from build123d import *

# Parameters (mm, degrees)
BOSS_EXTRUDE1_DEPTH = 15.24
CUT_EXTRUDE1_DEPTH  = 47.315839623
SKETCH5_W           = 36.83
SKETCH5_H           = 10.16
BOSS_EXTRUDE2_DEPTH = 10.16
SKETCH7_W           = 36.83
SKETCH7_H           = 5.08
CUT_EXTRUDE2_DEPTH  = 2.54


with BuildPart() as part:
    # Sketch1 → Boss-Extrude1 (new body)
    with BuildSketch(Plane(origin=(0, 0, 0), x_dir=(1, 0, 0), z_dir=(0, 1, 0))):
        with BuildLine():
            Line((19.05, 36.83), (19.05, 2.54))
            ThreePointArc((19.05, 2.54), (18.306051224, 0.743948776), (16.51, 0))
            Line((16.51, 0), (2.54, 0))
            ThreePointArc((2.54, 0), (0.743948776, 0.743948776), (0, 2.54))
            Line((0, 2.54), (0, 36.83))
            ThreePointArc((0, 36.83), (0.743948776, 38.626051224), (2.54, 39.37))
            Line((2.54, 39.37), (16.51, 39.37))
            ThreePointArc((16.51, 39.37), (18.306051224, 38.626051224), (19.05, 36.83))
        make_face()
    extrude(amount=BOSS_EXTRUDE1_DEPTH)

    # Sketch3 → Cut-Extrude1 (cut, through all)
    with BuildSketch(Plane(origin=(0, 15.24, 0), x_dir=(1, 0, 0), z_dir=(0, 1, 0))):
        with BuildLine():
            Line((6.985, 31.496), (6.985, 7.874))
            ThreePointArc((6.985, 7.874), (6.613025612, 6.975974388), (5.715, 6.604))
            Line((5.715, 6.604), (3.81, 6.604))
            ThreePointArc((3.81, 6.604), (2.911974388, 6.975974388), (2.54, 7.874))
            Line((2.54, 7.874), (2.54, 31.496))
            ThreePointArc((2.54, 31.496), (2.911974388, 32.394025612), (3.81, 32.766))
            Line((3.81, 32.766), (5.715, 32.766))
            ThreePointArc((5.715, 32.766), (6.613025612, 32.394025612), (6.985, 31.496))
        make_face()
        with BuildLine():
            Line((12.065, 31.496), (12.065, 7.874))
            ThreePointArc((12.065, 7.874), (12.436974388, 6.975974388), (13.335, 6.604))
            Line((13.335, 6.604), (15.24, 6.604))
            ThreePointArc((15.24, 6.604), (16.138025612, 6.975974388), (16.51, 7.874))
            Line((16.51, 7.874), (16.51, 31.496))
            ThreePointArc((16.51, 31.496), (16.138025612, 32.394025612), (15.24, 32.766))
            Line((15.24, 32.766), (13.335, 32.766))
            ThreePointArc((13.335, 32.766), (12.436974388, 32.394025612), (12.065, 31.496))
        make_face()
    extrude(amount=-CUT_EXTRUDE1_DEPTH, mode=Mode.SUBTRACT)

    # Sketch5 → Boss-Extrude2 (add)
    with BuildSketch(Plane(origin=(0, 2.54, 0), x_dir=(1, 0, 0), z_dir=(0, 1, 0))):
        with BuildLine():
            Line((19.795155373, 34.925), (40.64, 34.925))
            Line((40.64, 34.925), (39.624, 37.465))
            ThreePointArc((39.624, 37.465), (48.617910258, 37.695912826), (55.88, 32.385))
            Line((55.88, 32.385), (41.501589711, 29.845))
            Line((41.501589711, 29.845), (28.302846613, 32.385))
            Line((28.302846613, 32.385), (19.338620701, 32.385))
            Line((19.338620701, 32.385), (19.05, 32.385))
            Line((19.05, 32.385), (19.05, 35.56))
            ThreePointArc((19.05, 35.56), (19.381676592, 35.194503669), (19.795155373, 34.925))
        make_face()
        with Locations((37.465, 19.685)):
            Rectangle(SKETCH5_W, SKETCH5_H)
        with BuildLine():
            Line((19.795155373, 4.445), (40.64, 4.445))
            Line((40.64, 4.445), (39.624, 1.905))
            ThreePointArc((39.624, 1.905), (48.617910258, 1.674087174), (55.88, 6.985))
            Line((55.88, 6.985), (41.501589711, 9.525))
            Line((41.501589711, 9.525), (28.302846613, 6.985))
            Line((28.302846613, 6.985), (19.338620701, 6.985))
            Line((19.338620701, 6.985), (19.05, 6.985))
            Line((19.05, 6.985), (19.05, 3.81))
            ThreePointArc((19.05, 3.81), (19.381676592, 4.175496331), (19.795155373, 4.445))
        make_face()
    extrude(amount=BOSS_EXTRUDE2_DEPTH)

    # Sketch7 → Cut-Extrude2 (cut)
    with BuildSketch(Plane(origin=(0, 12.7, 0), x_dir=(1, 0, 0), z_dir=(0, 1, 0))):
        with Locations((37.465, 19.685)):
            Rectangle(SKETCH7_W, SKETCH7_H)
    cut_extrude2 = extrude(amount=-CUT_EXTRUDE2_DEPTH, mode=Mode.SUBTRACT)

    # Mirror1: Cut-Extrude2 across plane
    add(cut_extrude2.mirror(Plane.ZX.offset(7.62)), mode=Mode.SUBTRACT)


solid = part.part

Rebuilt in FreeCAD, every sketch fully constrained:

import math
import FreeCAD as App
import Part
import Sketcher

V = App.Vector
Q = App.Units.Quantity

doc = App.newDocument("Part")
body = doc.addObject("PartDesign::Body", "Body")

# Sketch on XZ plane
sketch1 = doc.addObject("Sketcher::SketchObject", "Sketch")
body.addObject(sketch1)
sketch1.AttachmentSupport = (doc.XZ_Plane, [""])
sketch1.MapMode = "FlatFace"
sketch1.addGeometry(Part.LineSegment(V(19.05, -2.54, 0), V(19.05, -36.83, 0)), False)
sketch1.addGeometry(Part.ArcOfCircle(Part.Circle(V(16.51, -36.83, 0), V(0, 0, 1), 2.54), math.radians(-90), math.radians(0)), False)
sketch1.addGeometry(Part.LineSegment(V(16.51, -39.37, 0), V(2.54, -39.37, 0)), False)
sketch1.addGeometry(Part.ArcOfCircle(Part.Circle(V(2.54, -36.83, 0), V(0, 0, 1), 2.54), math.radians(-180), math.radians(-90)), False)
sketch1.addGeometry(Part.LineSegment(V(0, -36.83, 0), V(0, -2.54, 0)), False)
sketch1.addGeometry(Part.ArcOfCircle(Part.Circle(V(2.54, -2.54, 0), V(0, 0, 1), 2.54), math.radians(90), math.radians(180)), False)
sketch1.addGeometry(Part.LineSegment(V(2.54, 0, 0), V(16.51, 0, 0)), False)
sketch1.addGeometry(Part.ArcOfCircle(Part.Circle(V(16.51, -2.54, 0), V(0, 0, 1), 2.54), math.radians(0), math.radians(90)), False)
sketch1.addConstraint(Sketcher.Constraint("Tangent", 0, 2, 1, 2))
sketch1.addConstraint(Sketcher.Constraint("Tangent", 1, 1, 2, 1))
sketch1.addConstraint(Sketcher.Constraint("Tangent", 2, 2, 3, 2))
sketch1.addConstraint(Sketcher.Constraint("Tangent", 3, 1, 4, 1))
sketch1.addConstraint(Sketcher.Constraint("Tangent", 4, 2, 5, 2))
sketch1.addConstraint(Sketcher.Constraint("Tangent", 5, 1, 6, 1))
sketch1.addConstraint(Sketcher.Constraint("Tangent", 6, 2, 7, 2))
sketch1.addConstraint(Sketcher.Constraint("Tangent", 7, 1, 0, 1))
sketch1.addConstraint(Sketcher.Constraint("Vertical", 0))
sketch1.addConstraint(Sketcher.Constraint("Horizontal", 2))
sketch1.addConstraint(Sketcher.Constraint("Vertical", 4))
sketch1.addConstraint(Sketcher.Constraint("Horizontal", 6))
sketch1.addConstraint(Sketcher.Constraint("Equal", 1, 3))
sketch1.addConstraint(Sketcher.Constraint("Equal", 3, 5))
sketch1.addConstraint(Sketcher.Constraint("Equal", 5, 7))
sketch1.addConstraint(Sketcher.Constraint("PointOnObject", 3, 1, -2))
sketch1.addConstraint(Sketcher.Constraint("PointOnObject", 5, 1, -1))
sketch1.addConstraint(Sketcher.Constraint("Radius", 1, Q("0.1 in")))
sketch1.addConstraint(Sketcher.Constraint("DistanceX", 2, 2, 2, 1, Q("0.55 in")))
sketch1.addConstraint(Sketcher.Constraint("DistanceY", 0, 2, 0, 1, Q("1.35 in")))
pad1 = doc.addObject("PartDesign::Pad", "Pad")
body.addObject(pad1)
pad1.Profile = sketch1
pad1.Length = Q("0.6 in")
pad1.Reversed = True

# Sketch on XZ plane
sketch2 = doc.addObject("Sketcher::SketchObject", "Sketch001")
body.addObject(sketch2)
sketch2.AttachmentSupport = (doc.XZ_Plane, [""])
sketch2.MapMode = "FlatFace"
sketch2.AttachmentOffset = App.Placement(V(0, 0, -0.6 * 25.4), App.Rotation())
sketch2.addGeometry(Part.LineSegment(V(6.985, -7.874, 0), V(6.985, -31.496, 0)), False)
sketch2.addGeometry(Part.ArcOfCircle(Part.Circle(V(5.715, -31.496, 0), V(0, 0, 1), 1.27), math.radians(-90), math.radians(0)), False)
sketch2.addGeometry(Part.LineSegment(V(5.715, -32.766, 0), V(3.81, -32.766, 0)), False)
sketch2.addGeometry(Part.ArcOfCircle(Part.Circle(V(3.81, -31.496, 0), V(0, 0, 1), 1.27), math.radians(180), math.radians(270)), False)
sketch2.addGeometry(Part.LineSegment(V(2.54, -31.496, 0), V(2.54, -7.874, 0)), False)
sketch2.addGeometry(Part.ArcOfCircle(Part.Circle(V(3.81, -7.874, 0), V(0, 0, 1), 1.27), math.radians(90), math.radians(180)), False)
sketch2.addGeometry(Part.LineSegment(V(3.81, -6.604, 0), V(5.715, -6.604, 0)), False)
sketch2.addGeometry(Part.ArcOfCircle(Part.Circle(V(5.715, -7.874, 0), V(0, 0, 1), 1.27), math.radians(0), math.radians(90)), False)
sketch2.addGeometry(Part.LineSegment(V(12.065, -31.496, 0), V(12.065, -7.874, 0)), False)
sketch2.addGeometry(Part.ArcOfCircle(Part.Circle(V(13.335, -7.874, 0), V(0, 0, 1), 1.27), math.radians(90), math.radians(180)), False)
sketch2.addGeometry(Part.LineSegment(V(13.335, -6.604, 0), V(15.24, -6.604, 0)), False)
sketch2.addGeometry(Part.ArcOfCircle(Part.Circle(V(15.24, -7.874, 0), V(0, 0, 1), 1.27), math.radians(0), math.radians(90)), False)
sketch2.addGeometry(Part.LineSegment(V(16.51, -7.874, 0), V(16.51, -31.496, 0)), False)
sketch2.addGeometry(Part.ArcOfCircle(Part.Circle(V(15.24, -31.496, 0), V(0, 0, 1), 1.27), math.radians(-90), math.radians(0)), False)
sketch2.addGeometry(Part.LineSegment(V(15.24, -32.766, 0), V(13.335, -32.766, 0)), False)
sketch2.addGeometry(Part.ArcOfCircle(Part.Circle(V(13.335, -31.496, 0), V(0, 0, 1), 1.27), math.radians(180), math.radians(270)), False)
sketch2.addConstraint(Sketcher.Constraint("Tangent", 0, 2, 1, 2))
sketch2.addConstraint(Sketcher.Constraint("Tangent", 1, 1, 2, 1))
sketch2.addConstraint(Sketcher.Constraint("Tangent", 2, 2, 3, 2))
sketch2.addConstraint(Sketcher.Constraint("Tangent", 3, 1, 4, 1))
sketch2.addConstraint(Sketcher.Constraint("Tangent", 4, 2, 5, 2))
sketch2.addConstraint(Sketcher.Constraint("Tangent", 5, 1, 6, 1))
sketch2.addConstraint(Sketcher.Constraint("Tangent", 6, 2, 7, 2))
sketch2.addConstraint(Sketcher.Constraint("Tangent", 7, 1, 0, 1))
sketch2.addConstraint(Sketcher.Constraint("Tangent", 8, 2, 9, 2))
sketch2.addConstraint(Sketcher.Constraint("Tangent", 9, 1, 10, 1))
sketch2.addConstraint(Sketcher.Constraint("Tangent", 10, 2, 11, 2))
sketch2.addConstraint(Sketcher.Constraint("Tangent", 11, 1, 12, 1))
sketch2.addConstraint(Sketcher.Constraint("Tangent", 12, 2, 13, 2))
sketch2.addConstraint(Sketcher.Constraint("Tangent", 13, 1, 14, 1))
sketch2.addConstraint(Sketcher.Constraint("Tangent", 14, 2, 15, 2))
sketch2.addConstraint(Sketcher.Constraint("Tangent", 15, 1, 8, 1))
sketch2.addConstraint(Sketcher.Constraint("Vertical", 0))
sketch2.addConstraint(Sketcher.Constraint("Horizontal", 2))
sketch2.addConstraint(Sketcher.Constraint("Vertical", 4))
sketch2.addConstraint(Sketcher.Constraint("Horizontal", 6))
sketch2.addConstraint(Sketcher.Constraint("Vertical", 8))
sketch2.addConstraint(Sketcher.Constraint("Horizontal", 10))
sketch2.addConstraint(Sketcher.Constraint("Vertical", 12))
sketch2.addConstraint(Sketcher.Constraint("Horizontal", 14))
sketch2.addConstraint(Sketcher.Constraint("Equal", 1, 3))
sketch2.addConstraint(Sketcher.Constraint("Equal", 3, 5))
sketch2.addConstraint(Sketcher.Constraint("Equal", 5, 7))
sketch2.addConstraint(Sketcher.Constraint("Equal", 7, 9))
sketch2.addConstraint(Sketcher.Constraint("Equal", 9, 11))
sketch2.addConstraint(Sketcher.Constraint("Equal", 11, 13))
sketch2.addConstraint(Sketcher.Constraint("Equal", 13, 15))
sketch2.addConstraint(Sketcher.Constraint("Horizontal", 7, 3, 9, 3))
sketch2.addConstraint(Sketcher.Constraint("Horizontal", 3, 3, 13, 3))
sketch2.addConstraint(Sketcher.Constraint("Equal", 6, 10))
sketch2.addConstraint(Sketcher.Constraint("Radius", 1, Q("0.05 in")))
sketch2.addConstraint(Sketcher.Constraint("DistanceY", 0, 2, 0, 1, Q("0.93 in")))
sketch2.addConstraint(Sketcher.Constraint("DistanceX", -1, 1, 11, 3, Q("0.6 in")))
sketch2.addConstraint(Sketcher.Constraint("DistanceX", -1, 1, 3, 1, Q("0.1 in")))
sketch2.addConstraint(Sketcher.Constraint("DistanceX", 7, 3, 9, 3, Q("0.3 in")))
sketch2.addConstraint(Sketcher.Constraint("DistanceY", 1, 3, -1, 1, Q("1.24 in")))
pocket1 = doc.addObject("PartDesign::Pocket", "Pocket")
body.addObject(pocket1)
pocket1.Profile = sketch2
pocket1.Type = "ThroughAll"
pocket1.Reversed = True

# Sketch on XZ plane
sketch3 = doc.addObject("Sketcher::SketchObject", "Sketch002")
body.addObject(sketch3)
sketch3.AttachmentSupport = (doc.XZ_Plane, [""])
sketch3.MapMode = "FlatFace"
sketch3.AttachmentOffset = App.Placement(V(0, 0, -0.1 * 25.4), App.Rotation())
sketch3.addGeometry(Part.LineSegment(V(40.64, -34.925, 0), V(19.795155, -34.925, 0)), False)
sketch3.addGeometry(Part.ArcOfCircle(Part.Circle(V(20.634444, -36.664593, 0), V(0, 0, 1), 1.931473), math.radians(115.755585), math.radians(145.11778)), False)
sketch3.addGeometry(Part.LineSegment(V(19.05, -35.56, 0), V(19.05, -32.385, 0)), False)
sketch3.addGeometry(Part.LineSegment(V(19.05, -32.385, 0), V(28.302847, -32.385, 0)), False)
sketch3.addGeometry(Part.LineSegment(V(28.302847, -32.385, 0), V(41.50159, -29.845, 0)), False)
sketch3.addGeometry(Part.LineSegment(V(41.50159, -29.845, 0), V(55.88, -32.385, 0)), False)
sketch3.addGeometry(Part.ArcOfCircle(Part.Circle(V(44.459627, -24.389406, 0), V(0, 0, 1), 13.941106), math.radians(-110.295443), math.radians(-34.996508)), False)
sketch3.addGeometry(Part.LineSegment(V(39.624, -37.465, 0), V(40.64, -34.925, 0)), False)
sketch3.addGeometry(Part.LineSegment(V(19.05, -24.765, 0), V(19.05, -14.605, 0)), False)
sketch3.addGeometry(Part.LineSegment(V(19.05, -14.605, 0), V(55.88, -14.605, 0)), False)
sketch3.addGeometry(Part.LineSegment(V(55.88, -14.605, 0), V(55.88, -24.765, 0)), False)
sketch3.addGeometry(Part.LineSegment(V(55.88, -24.765, 0), V(19.05, -24.765, 0)), False)
sketch3.addGeometry(Part.LineSegment(V(19.795155, -4.445, 0), V(40.64, -4.445, 0)), False)
sketch3.addGeometry(Part.LineSegment(V(40.64, -4.445, 0), V(39.624, -1.905, 0)), False)
sketch3.addGeometry(Part.ArcOfCircle(Part.Circle(V(44.459627, -14.980594, 0), V(0, 0, 1), 13.941106), math.radians(34.996508), math.radians(110.295443)), False)
sketch3.addGeometry(Part.LineSegment(V(55.88, -6.985, 0), V(41.50159, -9.525, 0)), False)
sketch3.addGeometry(Part.LineSegment(V(41.50159, -9.525, 0), V(28.302847, -6.985, 0)), False)
sketch3.addGeometry(Part.LineSegment(V(28.302847, -6.985, 0), V(19.05, -6.985, 0)), False)
sketch3.addGeometry(Part.LineSegment(V(19.05, -6.985, 0), V(19.05, -3.81, 0)), False)
sketch3.addGeometry(Part.ArcOfCircle(Part.Circle(V(20.634444, -2.705407, 0), V(0, 0, 1), 1.931473), math.radians(-145.11778), math.radians(-115.755585)), False)
sketch3.addConstraint(Sketcher.Constraint("Coincident", 0, 2, 1, 1))
sketch3.addConstraint(Sketcher.Constraint("Coincident", 1, 2, 2, 1))
sketch3.addConstraint(Sketcher.Constraint("Coincident", 2, 2, 3, 1))
sketch3.addConstraint(Sketcher.Constraint("Coincident", 3, 2, 4, 1))
sketch3.addConstraint(Sketcher.Constraint("Coincident", 4, 2, 5, 1))
sketch3.addConstraint(Sketcher.Constraint("Coincident", 5, 2, 6, 2))
sketch3.addConstraint(Sketcher.Constraint("Coincident", 6, 1, 7, 1))
sketch3.addConstraint(Sketcher.Constraint("Coincident", 7, 2, 0, 1))
sketch3.addConstraint(Sketcher.Constraint("Coincident", 8, 2, 9, 1))
sketch3.addConstraint(Sketcher.Constraint("Coincident", 9, 2, 10, 1))
sketch3.addConstraint(Sketcher.Constraint("Coincident", 10, 2, 11, 1))
sketch3.addConstraint(Sketcher.Constraint("Coincident", 11, 2, 8, 1))
sketch3.addConstraint(Sketcher.Constraint("Coincident", 12, 2, 13, 1))
sketch3.addConstraint(Sketcher.Constraint("Coincident", 13, 2, 14, 2))
sketch3.addConstraint(Sketcher.Constraint("Coincident", 14, 1, 15, 1))
sketch3.addConstraint(Sketcher.Constraint("Coincident", 15, 2, 16, 1))
sketch3.addConstraint(Sketcher.Constraint("Coincident", 16, 2, 17, 1))
sketch3.addConstraint(Sketcher.Constraint("Coincident", 17, 2, 18, 1))
sketch3.addConstraint(Sketcher.Constraint("Coincident", 18, 2, 19, 1))
sketch3.addConstraint(Sketcher.Constraint("Coincident", 19, 2, 12, 1))
sketch3.addConstraint(Sketcher.Constraint("Horizontal", 0))
sketch3.addConstraint(Sketcher.Constraint("Vertical", 2))
sketch3.addConstraint(Sketcher.Constraint("Horizontal", 3))
sketch3.addConstraint(Sketcher.Constraint("Vertical", 8))
sketch3.addConstraint(Sketcher.Constraint("Horizontal", 9))
sketch3.addConstraint(Sketcher.Constraint("Vertical", 10))
sketch3.addConstraint(Sketcher.Constraint("Horizontal", 11))
sketch3.addConstraint(Sketcher.Constraint("Horizontal", 12))
sketch3.addConstraint(Sketcher.Constraint("Horizontal", 17))
sketch3.addConstraint(Sketcher.Constraint("Vertical", 18))
sketch3.addConstraint(Sketcher.Constraint("Equal", 6, 14))
sketch3.addConstraint(Sketcher.Constraint("Equal", 1, 19))
sketch3.addConstraint(Sketcher.Constraint("Horizontal", 3, 2, 5, 2))
sketch3.addConstraint(Sketcher.Constraint("Horizontal", 14, 1, 16, 2))
sketch3.addConstraint(Sketcher.Constraint("Vertical", 6, 3, 14, 3))
sketch3.addConstraint(Sketcher.Constraint("Vertical", 1, 3, 19, 3))
sketch3.addConstraint(Sketcher.Constraint("Vertical", 2, 2, 8, 2))
sketch3.addConstraint(Sketcher.Constraint("Vertical", 5, 2, 9, 2))
sketch3.addConstraint(Sketcher.Constraint("Vertical", 7, 2, 12, 2))
sketch3.addConstraint(Sketcher.Constraint("Vertical", 6, 1, 13, 2))
sketch3.addConstraint(Sketcher.Constraint("Vertical", 10, 2, 14, 1))
sketch3.addConstraint(Sketcher.Constraint("Vertical", 4, 2, 15, 2))
sketch3.addConstraint(Sketcher.Constraint("Vertical", 3, 2, 16, 2))
sketch3.addConstraint(Sketcher.Constraint("Vertical", 11, 2, 17, 2))
sketch3.addConstraint(Sketcher.Constraint("Vertical", 0, 2, 19, 2))
sketch3.addConstraint(Sketcher.Constraint("Equal", 2, 18))
sketch3.addConstraint(Sketcher.Constraint("Equal", 5, 15))
sketch3.addConstraint(Sketcher.Constraint("DistanceY", 8, 1, 8, 2, Q("0.4 in")))
sketch3.addConstraint(Sketcher.Constraint("DistanceX", 9, 1, 9, 2, Q("1.45 in")))
sketch3.addConstraint(Sketcher.Constraint("DistanceY", 1, 2, -1, 1, Q("1.4 in")))
sketch3.addConstraint(Sketcher.Constraint("DistanceX", -1, 1, 5, 2, Q("2.2 in")))
sketch3.addConstraint(Sketcher.Constraint("DistanceX", -1, 1, 7, 2, Q("1.6 in")))
sketch3.addConstraint(Sketcher.Constraint("DistanceY", 0, 2, 2, 2, Q("0.1 in")))
sketch3.addConstraint(Sketcher.Constraint("DistanceY", 3, 2, 4, 2, Q("0.1 in")))
sketch3.addConstraint(Sketcher.Constraint("DistanceY", 6, 1, 4, 2, Q("0.3 in")))
sketch3.addConstraint(Sketcher.Constraint("DistanceY", 2, 2, 8, 2, Q("0.7 in")))
sketch3.addConstraint(Sketcher.Constraint("DistanceY", 9, 2, 12, 2, Q("0.4 in")))
sketch3.addConstraint(Sketcher.Constraint("DistanceY", 2, 1, 2, 2, Q("0.125 in")))
sketch3.addConstraint(Sketcher.Constraint("DistanceX", -1, 1, 6, 1, Q("1.56 in")))
sketch3.addConstraint(Sketcher.Constraint("Radius", 1, Q("1.931473 mm")))
sketch3.addConstraint(Sketcher.Constraint("Radius", 6, Q("13.941106 mm")))
sketch3.addConstraint(Sketcher.Constraint("DistanceY", 1, 3, 14, 3, Q("21.683999 mm")))
sketch3.addConstraint(Sketcher.Constraint("DistanceX", 3, 1, 3, 2, Q("9.252847 mm")))
sketch3.addConstraint(Sketcher.Constraint("DistanceX", -1, 1, 4, 2, Q("41.50159 mm")))
pad2 = doc.addObject("PartDesign::Pad", "Pad001")
body.addObject(pad2)
pad2.Profile = sketch3
pad2.Length = Q("0.4 in")
pad2.Reversed = True

# Sketch on XZ plane
sketch4 = doc.addObject("Sketcher::SketchObject", "Sketch003")
body.addObject(sketch4)
sketch4.AttachmentSupport = (doc.XZ_Plane, [""])
sketch4.MapMode = "FlatFace"
sketch4.AttachmentOffset = App.Placement(V(0, 0, -0.5 * 25.4), App.Rotation())
sketch4.addGeometry(Part.LineSegment(V(19.05, -22.225, 0), V(19.05, -17.145, 0)), False)
sketch4.addGeometry(Part.LineSegment(V(19.05, -17.145, 0), V(55.88, -17.145, 0)), False)
sketch4.addGeometry(Part.LineSegment(V(55.88, -17.145, 0), V(55.88, -22.225, 0)), False)
sketch4.addGeometry(Part.LineSegment(V(55.88, -22.225, 0), V(19.05, -22.225, 0)), False)
sketch4.addConstraint(Sketcher.Constraint("Coincident", 0, 2, 1, 1))
sketch4.addConstraint(Sketcher.Constraint("Coincident", 1, 2, 2, 1))
sketch4.addConstraint(Sketcher.Constraint("Coincident", 2, 2, 3, 1))
sketch4.addConstraint(Sketcher.Constraint("Coincident", 3, 2, 0, 1))
sketch4.addConstraint(Sketcher.Constraint("Vertical", 0))
sketch4.addConstraint(Sketcher.Constraint("Horizontal", 1))
sketch4.addConstraint(Sketcher.Constraint("Vertical", 2))
sketch4.addConstraint(Sketcher.Constraint("Horizontal", 3))
sketch4.addConstraint(Sketcher.Constraint("DistanceY", 0, 1, 0, 2, Q("0.2 in")))
sketch4.addConstraint(Sketcher.Constraint("DistanceX", 1, 1, 1, 2, Q("1.45 in")))
sketch4.addConstraint(Sketcher.Constraint("DistanceX", -1, 1, 1, 2, Q("2.2 in")))
sketch4.addConstraint(Sketcher.Constraint("DistanceY", 0, 2, -1, 1, Q("0.675 in")))
pocket2 = doc.addObject("PartDesign::Pocket", "Pocket001")
body.addObject(pocket2)
pocket2.Profile = sketch4
pocket2.Length = Q("0.1 in")
pocket2.Reversed = True
doc.recompute()

datumplane = doc.addObject("PartDesign::Plane", "DatumPlane")
body.addObject(datumplane)
datumplane.AttachmentSupport = (doc.XZ_Plane, [""])
datumplane.MapMode = "FlatFace"
datumplane.AttachmentOffset = App.Placement(V(0, 0, -0.3 * 25.4), App.Rotation())
mirrored = doc.addObject("PartDesign::Mirrored", "Mirrored")
body.addObject(mirrored)
mirrored.Originals = [pocket2]
mirrored.MirrorPlane = (datumplane, [""])
body.Tip = mirrored

doc.recompute()
